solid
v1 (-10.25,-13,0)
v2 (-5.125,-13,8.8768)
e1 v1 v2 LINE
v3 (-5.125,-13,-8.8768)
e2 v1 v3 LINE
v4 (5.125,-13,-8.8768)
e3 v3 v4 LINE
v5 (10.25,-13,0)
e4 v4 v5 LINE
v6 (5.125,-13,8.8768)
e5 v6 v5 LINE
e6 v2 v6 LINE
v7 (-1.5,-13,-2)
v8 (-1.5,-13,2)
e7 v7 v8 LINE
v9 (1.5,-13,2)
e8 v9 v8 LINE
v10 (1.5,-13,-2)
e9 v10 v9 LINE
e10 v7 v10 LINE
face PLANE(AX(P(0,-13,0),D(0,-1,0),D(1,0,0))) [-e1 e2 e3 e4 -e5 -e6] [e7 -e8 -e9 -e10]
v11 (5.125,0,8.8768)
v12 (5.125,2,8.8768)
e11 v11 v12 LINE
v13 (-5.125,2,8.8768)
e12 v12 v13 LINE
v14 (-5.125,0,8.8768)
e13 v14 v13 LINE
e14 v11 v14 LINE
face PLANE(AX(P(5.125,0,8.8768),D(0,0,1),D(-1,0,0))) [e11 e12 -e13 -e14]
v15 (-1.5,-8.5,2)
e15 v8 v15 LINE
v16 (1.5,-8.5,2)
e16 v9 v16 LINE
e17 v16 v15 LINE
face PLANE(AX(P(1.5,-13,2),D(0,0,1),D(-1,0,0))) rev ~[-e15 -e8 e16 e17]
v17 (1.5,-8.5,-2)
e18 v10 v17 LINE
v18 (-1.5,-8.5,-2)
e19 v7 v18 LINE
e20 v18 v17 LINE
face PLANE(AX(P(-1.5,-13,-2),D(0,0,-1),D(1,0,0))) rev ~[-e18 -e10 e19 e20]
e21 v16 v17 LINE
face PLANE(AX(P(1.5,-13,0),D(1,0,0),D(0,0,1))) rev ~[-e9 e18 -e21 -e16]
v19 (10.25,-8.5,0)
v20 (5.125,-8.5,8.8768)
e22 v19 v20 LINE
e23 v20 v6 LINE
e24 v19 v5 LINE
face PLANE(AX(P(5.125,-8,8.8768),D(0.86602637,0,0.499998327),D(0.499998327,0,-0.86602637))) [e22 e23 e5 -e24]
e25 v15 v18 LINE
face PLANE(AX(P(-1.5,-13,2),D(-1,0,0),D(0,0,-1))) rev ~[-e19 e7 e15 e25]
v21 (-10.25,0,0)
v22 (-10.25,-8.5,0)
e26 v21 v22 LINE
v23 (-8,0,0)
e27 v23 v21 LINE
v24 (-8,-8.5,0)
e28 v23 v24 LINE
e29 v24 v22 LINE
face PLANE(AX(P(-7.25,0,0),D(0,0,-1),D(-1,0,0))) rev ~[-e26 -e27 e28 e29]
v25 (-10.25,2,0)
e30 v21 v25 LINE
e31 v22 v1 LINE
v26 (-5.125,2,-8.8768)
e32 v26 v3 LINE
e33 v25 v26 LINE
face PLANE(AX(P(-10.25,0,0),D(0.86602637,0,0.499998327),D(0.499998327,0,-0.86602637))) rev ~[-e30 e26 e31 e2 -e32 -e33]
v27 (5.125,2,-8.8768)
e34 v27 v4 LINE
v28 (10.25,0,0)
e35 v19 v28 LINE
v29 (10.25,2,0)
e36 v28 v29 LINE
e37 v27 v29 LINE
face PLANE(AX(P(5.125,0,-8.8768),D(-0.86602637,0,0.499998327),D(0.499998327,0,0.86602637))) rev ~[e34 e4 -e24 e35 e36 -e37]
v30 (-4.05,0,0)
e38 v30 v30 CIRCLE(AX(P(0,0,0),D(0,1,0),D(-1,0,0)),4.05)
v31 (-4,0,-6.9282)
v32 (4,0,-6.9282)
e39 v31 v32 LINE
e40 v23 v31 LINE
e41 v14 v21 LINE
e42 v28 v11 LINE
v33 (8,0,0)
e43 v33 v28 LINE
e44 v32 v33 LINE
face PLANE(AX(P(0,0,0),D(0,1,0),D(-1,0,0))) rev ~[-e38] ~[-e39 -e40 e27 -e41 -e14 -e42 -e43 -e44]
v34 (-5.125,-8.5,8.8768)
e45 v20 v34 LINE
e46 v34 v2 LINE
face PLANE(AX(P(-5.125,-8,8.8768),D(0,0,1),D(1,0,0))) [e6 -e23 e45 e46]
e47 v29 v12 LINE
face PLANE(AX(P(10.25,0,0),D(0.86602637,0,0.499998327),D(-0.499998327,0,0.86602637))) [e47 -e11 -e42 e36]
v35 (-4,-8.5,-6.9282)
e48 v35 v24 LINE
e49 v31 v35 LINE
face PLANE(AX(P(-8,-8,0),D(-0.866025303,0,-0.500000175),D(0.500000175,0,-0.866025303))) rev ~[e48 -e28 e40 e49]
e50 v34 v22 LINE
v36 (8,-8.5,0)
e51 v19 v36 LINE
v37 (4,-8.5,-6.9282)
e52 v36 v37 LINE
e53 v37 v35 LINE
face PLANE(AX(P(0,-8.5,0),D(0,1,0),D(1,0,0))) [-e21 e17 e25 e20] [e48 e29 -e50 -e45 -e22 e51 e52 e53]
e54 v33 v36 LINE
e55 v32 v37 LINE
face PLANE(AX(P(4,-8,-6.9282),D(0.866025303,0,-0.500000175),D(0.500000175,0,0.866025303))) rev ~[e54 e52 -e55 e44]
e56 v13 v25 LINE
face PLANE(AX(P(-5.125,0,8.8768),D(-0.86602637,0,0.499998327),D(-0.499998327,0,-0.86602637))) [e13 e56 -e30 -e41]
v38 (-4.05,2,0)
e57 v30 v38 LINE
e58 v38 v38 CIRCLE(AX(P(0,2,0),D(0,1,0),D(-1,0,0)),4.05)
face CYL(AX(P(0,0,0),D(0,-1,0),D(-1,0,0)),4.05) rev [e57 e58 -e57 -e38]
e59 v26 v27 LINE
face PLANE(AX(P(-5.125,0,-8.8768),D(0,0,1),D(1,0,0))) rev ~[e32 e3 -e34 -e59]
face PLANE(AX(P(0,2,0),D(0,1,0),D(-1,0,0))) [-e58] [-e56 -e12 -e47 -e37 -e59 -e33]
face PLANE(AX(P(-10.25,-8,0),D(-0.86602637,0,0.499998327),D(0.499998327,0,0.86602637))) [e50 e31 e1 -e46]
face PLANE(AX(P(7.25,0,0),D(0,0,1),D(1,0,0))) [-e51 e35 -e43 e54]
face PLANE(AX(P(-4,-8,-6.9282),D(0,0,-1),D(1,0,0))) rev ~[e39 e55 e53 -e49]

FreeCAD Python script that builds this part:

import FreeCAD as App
import Part
import Sketcher
Q = App.Units.Quantity


def add_polygon(sketch, points):
    """Adds a closed chain of lines whose ends are joined by coincident constraints."""
    first, n = sketch.GeometryCount, len(points)
    for a, b in zip(points, points[1:] + points[:1]):
        sketch.addGeometry(Part.LineSegment(App.Vector(*a, 0), App.Vector(*b, 0)), False)
    for i in range(n):
        sketch.addConstraint(Sketcher.Constraint("Coincident", first + i, 2, first + (i + 1) % n, 1))

doc = App.newDocument("Part")
body = doc.addObject("PartDesign::Body", "Body")

sketch1 = body.newObject("Sketcher::SketchObject", "Sketch")
sketch1.AttachmentSupport = (doc.getObject("XZ_Plane"), [""])
sketch1.MapMode = "FlatFace"
add_polygon(sketch1, [(-5.1, -8.9), (-10.2, 0), (-5.1, 8.9), (5.1, 8.9), (10.2, 0), (5.1, -8.9)])
sketch1.addGeometry(Part.Circle(App.Vector(0, 0, 0), App.Vector(0, 0, 1), 4), False)
sketch1.addConstraint(Sketcher.Constraint("Horizontal", 2))
sketch1.addConstraint(Sketcher.Constraint("Horizontal", 5))
sketch1.addConstraint(Sketcher.Constraint("Coincident", 6, 3, -1, 1))
sketch1.addConstraint(Sketcher.Constraint("Symmetric", 0, 2, 3, 2, -1, 1))
sketch1.addConstraint(Sketcher.Constraint("Symmetric", 1, 2, 4, 2, -1, 1))
sketch1.addConstraint(Sketcher.Constraint("PointOnObject", 0, 2, -1))
sketch1.addConstraint(Sketcher.Constraint("Parallel", 0, 3))
sketch1.addConstraint(Sketcher.Constraint("Vertical", 2, 2, 4, 2))
sketch1.addConstraint(Sketcher.Constraint("Diameter", 6, Q("8.1 mm")))
sketch1.addConstraint(Sketcher.Constraint("Angle", 0, Q("120 deg")))
sketch1.addConstraint(Sketcher.Constraint("DistanceX", 2, 1, 2, 2, Q("10.25 mm")))
sketch1.addConstraint(Sketcher.Constraint("DistanceX", 0, 2, 3, 2, Q("20.5 mm")))
pad1 = body.newObject("PartDesign::Pad", "Pad")
pad1.Profile = sketch1
pad1.Length = 2
pad1.Reversed = True

sketch2 = body.newObject("Sketcher::SketchObject", "Sketch001")
sketch2.AttachmentSupport = (doc.getObject("XZ_Plane"), [""])
sketch2.MapMode = "FlatFace"
add_polygon(sketch2, [(-10.2, 0), (-7.2, 0), (-3.6, -6.3), (3.6, -6.3), (7.2, 0), (10.2, 0), (5.1, -8.9), (-5.1, -8.9)])
sketch2.addConstraint(Sketcher.Constraint("Horizontal", 0))
sketch2.addConstraint(Sketcher.Constraint("Horizontal", 2))
sketch2.addConstraint(Sketcher.Constraint("Horizontal", 4))
sketch2.addConstraint(Sketcher.Constraint("Horizontal", 6))
sketch2.addConstraint(Sketcher.Constraint("Symmetric", 0, 2, 3, 2, -1, 1))
sketch2.addConstraint(Sketcher.Constraint("Symmetric", 4, 2, 7, 2, -2))
sketch2.addConstraint(Sketcher.Constraint("Parallel", 3, 5))
sketch2.addConstraint(Sketcher.Constraint("Parallel", 1, 7))
sketch2.addConstraint(Sketcher.Constraint("Equal", 1, 3))
sketch2.addConstraint(Sketcher.Constraint("DistanceX", 0, 1, 0, 2, Q("3 mm")))
sketch2.addConstraint(Sketcher.Constraint("DistanceX", 2, 1, 2, 2, Q("7.25 mm")))
sketch2.addConstraint(Sketcher.Constraint("Distance", 1, Q("7.25 mm")))
sketch2.addConstraint(Sketcher.Constraint("DistanceX", 0, 2, -1, 1, Q("7.25 mm")))
sketch2.addConstraint(Sketcher.Constraint("DistanceX", 6, 2, 6, 1, Q("10.25 mm")))
pad2 = body.newObject("PartDesign::Pad", "Pad001")
pad2.Profile = sketch2
pad2.Length = 8

sketch3 = body.newObject("Sketcher::SketchObject", "Sketch002")
sketch3.AttachmentSupport = (doc.getObject("XZ_Plane"), [""])
sketch3.MapMode = "FlatFace"
sketch3.AttachmentOffset = App.Placement(App.Vector(0, 0, 8), App.Rotation())
add_polygon(sketch3, [(-5, 9), (-10, 0), (-5, -9), (5, -9), (10, 0), (5, 9)])
sketch3.addConstraint(Sketcher.Constraint("Horizontal", 2))
sketch3.addConstraint(Sketcher.Constraint("Horizontal", 5))
sketch3.addConstraint(Sketcher.Constraint("Symmetric", 0, 2, 3, 2, -1, 1))
sketch3.addConstraint(Sketcher.Constraint("Symmetric", 1, 2, 4, 2, -1, 1))
sketch3.addConstraint(Sketcher.Constraint("PointOnObject", 0, 2, -1))
sketch3.addConstraint(Sketcher.Constraint("Parallel", 0, 3))
sketch3.addConstraint(Sketcher.Constraint("Vertical", 2, 2, 4, 2))
sketch3.addConstraint(Sketcher.Constraint("Angle", 0, Q("-120 deg")))
sketch3.addConstraint(Sketcher.Constraint("DistanceX", 2, 1, 2, 2, Q("10.25 mm")))
sketch3.addConstraint(Sketcher.Constraint("DistanceX", 0, 2, 3, 2, Q("20.5 mm")))
pad3 = body.newObject("PartDesign::Pad", "Pad002")
pad3.Profile = sketch3
pad3.Length = 5

sketch4 = body.newObject("Sketcher::SketchObject", "Sketch003")
sketch4.AttachmentSupport = (doc.getObject("XZ_Plane"), [""])
sketch4.MapMode = "FlatFace"
sketch4.AttachmentOffset = App.Placement(App.Vector(0, 0, 13), App.Rotation())
add_polygon(sketch4, [(-1.5, 2), (-1.5, -2), (1.5, -2), (1.5, 2)])
sketch4.addConstraint(Sketcher.Constraint("Vertical", 0))
sketch4.addConstraint(Sketcher.Constraint("Horizontal", 1))
sketch4.addConstraint(Sketcher.Constraint("Vertical", 2))
sketch4.addConstraint(Sketcher.Constraint("Horizontal", 3))
sketch4.addConstraint(Sketcher.Constraint("Symmetric", 0, 2, 2, 2, -1, 1))
sketch4.addConstraint(Sketcher.Constraint("DistanceX", 1, 1, 1, 2, Q("3 mm")))
sketch4.addConstraint(Sketcher.Constraint("DistanceY", 0, 2, 0, 1, Q("4 mm")))
pocket1 = body.newObject("PartDesign::Pocket", "Pocket")
pocket1.Profile = sketch4
pocket1.Length = 4.5

sketch5 = body.newObject("Sketcher::SketchObject", "Sketch004")
sketch5.AttachmentSupport = (doc.getObject("XZ_Plane"), [""])
sketch5.MapMode = "FlatFace"
sketch5.AttachmentOffset = App.Placement(App.Vector(0, 0, 8), App.Rotation())
add_polygon(sketch5, [(-4, -6.9), (-8, 0), (-7.2, 0), (-3.6, -6.3), (3.6, -6.3), (7.2, 0), (8, 0), (4, -6.9)])
sketch5.addConstraint(Sketcher.Constraint("Horizontal", 1))
sketch5.addConstraint(Sketcher.Constraint("Horizontal", 3))
sketch5.addConstraint(Sketcher.Constraint("Horizontal", 5))
sketch5.addConstraint(Sketcher.Constraint("Horizontal", 7))
sketch5.addConstraint(Sketcher.Constraint("Symmetric", 1, 2, 4, 2, -1, 1))
sketch5.addConstraint(Sketcher.Constraint("Symmetric", 0, 2, 5, 2, -2))
sketch5.addConstraint(Sketcher.Constraint("Parallel", 0, 2))
sketch5.addConstraint(Sketcher.Constraint("Parallel", 4, 6))
sketch5.addConstraint(Sketcher.Constraint("Equal", 2, 4))
sketch5.addConstraint(Sketcher.Constraint("DistanceX", 1, 1, 1, 2, Q("0.75 mm")))
sketch5.addConstraint(Sketcher.Constraint("DistanceX", 7, 2, 7, 1, Q("8 mm")))
sketch5.addConstraint(Sketcher.Constraint("Angle", 0, Q("120 deg")))
sketch5.addConstraint(Sketcher.Constraint("Distance", 0, Q("8 mm")))
sketch5.addConstraint(Sketcher.Constraint("DistanceX", 3, 1, 3, 2, Q("7.25 mm")))
pocket2 = body.newObject("PartDesign::Pocket", "Pocket001")
pocket2.Profile = sketch5
pocket2.Length = 8

sketch6 = body.newObject("Sketcher::SketchObject", "Sketch005")
sketch6.AttachmentSupport = (doc.getObject("XZ_Plane"), [""])
sketch6.MapMode = "FlatFace"
sketch6.AttachmentOffset = App.Placement(App.Vector(0, 0, 8), App.Rotation())
add_polygon(sketch6, [(-4, -6.9), (-8, 0), (-10.2, 0), (-5.1, 8.9), (5.1, 8.9), (10.2, 0), (8, 0), (4, -6.9)])
sketch6.addConstraint(Sketcher.Constraint("Horizontal", 1))
sketch6.addConstraint(Sketcher.Constraint("Horizontal", 3))
sketch6.addConstraint(Sketcher.Constraint("Horizontal", 5))
sketch6.addConstraint(Sketcher.Constraint("Horizontal", 7))
sketch6.addConstraint(Sketcher.Constraint("Symmetric", 1, 2, 4, 2, -1, 1))
sketch6.addConstraint(Sketcher.Constraint("Symmetric", 0, 2, 5, 2, -2))
sketch6.addConstraint(Sketcher.Constraint("Parallel", 0, 4))
sketch6.addConstraint(Sketcher.Constraint("Parallel", 2, 6))
sketch6.addConstraint(Sketcher.Constraint("Equal", 2, 4))
sketch6.addConstraint(Sketcher.Constraint("DistanceX", 7, 2, 7, 1, Q("8 mm")))
sketch6.addConstraint(Sketcher.Constraint("Angle", 0, Q("120 deg")))
sketch6.addConstraint(Sketcher.Constraint("Distance", 0, Q("8 mm")))
sketch6.addConstraint(Sketcher.Constraint("DistanceX", 1, 2, 1, 1, Q("2.25 mm")))
sketch6.addConstraint(Sketcher.Constraint("DistanceX", 3, 1, 3, 2, Q("10.25 mm")))
pocket3 = body.newObject("PartDesign::Pocket", "Pocket002")
pocket3.Profile = sketch6
pocket3.Length = 0.5
pocket3.Reversed = True

doc.recompute()
